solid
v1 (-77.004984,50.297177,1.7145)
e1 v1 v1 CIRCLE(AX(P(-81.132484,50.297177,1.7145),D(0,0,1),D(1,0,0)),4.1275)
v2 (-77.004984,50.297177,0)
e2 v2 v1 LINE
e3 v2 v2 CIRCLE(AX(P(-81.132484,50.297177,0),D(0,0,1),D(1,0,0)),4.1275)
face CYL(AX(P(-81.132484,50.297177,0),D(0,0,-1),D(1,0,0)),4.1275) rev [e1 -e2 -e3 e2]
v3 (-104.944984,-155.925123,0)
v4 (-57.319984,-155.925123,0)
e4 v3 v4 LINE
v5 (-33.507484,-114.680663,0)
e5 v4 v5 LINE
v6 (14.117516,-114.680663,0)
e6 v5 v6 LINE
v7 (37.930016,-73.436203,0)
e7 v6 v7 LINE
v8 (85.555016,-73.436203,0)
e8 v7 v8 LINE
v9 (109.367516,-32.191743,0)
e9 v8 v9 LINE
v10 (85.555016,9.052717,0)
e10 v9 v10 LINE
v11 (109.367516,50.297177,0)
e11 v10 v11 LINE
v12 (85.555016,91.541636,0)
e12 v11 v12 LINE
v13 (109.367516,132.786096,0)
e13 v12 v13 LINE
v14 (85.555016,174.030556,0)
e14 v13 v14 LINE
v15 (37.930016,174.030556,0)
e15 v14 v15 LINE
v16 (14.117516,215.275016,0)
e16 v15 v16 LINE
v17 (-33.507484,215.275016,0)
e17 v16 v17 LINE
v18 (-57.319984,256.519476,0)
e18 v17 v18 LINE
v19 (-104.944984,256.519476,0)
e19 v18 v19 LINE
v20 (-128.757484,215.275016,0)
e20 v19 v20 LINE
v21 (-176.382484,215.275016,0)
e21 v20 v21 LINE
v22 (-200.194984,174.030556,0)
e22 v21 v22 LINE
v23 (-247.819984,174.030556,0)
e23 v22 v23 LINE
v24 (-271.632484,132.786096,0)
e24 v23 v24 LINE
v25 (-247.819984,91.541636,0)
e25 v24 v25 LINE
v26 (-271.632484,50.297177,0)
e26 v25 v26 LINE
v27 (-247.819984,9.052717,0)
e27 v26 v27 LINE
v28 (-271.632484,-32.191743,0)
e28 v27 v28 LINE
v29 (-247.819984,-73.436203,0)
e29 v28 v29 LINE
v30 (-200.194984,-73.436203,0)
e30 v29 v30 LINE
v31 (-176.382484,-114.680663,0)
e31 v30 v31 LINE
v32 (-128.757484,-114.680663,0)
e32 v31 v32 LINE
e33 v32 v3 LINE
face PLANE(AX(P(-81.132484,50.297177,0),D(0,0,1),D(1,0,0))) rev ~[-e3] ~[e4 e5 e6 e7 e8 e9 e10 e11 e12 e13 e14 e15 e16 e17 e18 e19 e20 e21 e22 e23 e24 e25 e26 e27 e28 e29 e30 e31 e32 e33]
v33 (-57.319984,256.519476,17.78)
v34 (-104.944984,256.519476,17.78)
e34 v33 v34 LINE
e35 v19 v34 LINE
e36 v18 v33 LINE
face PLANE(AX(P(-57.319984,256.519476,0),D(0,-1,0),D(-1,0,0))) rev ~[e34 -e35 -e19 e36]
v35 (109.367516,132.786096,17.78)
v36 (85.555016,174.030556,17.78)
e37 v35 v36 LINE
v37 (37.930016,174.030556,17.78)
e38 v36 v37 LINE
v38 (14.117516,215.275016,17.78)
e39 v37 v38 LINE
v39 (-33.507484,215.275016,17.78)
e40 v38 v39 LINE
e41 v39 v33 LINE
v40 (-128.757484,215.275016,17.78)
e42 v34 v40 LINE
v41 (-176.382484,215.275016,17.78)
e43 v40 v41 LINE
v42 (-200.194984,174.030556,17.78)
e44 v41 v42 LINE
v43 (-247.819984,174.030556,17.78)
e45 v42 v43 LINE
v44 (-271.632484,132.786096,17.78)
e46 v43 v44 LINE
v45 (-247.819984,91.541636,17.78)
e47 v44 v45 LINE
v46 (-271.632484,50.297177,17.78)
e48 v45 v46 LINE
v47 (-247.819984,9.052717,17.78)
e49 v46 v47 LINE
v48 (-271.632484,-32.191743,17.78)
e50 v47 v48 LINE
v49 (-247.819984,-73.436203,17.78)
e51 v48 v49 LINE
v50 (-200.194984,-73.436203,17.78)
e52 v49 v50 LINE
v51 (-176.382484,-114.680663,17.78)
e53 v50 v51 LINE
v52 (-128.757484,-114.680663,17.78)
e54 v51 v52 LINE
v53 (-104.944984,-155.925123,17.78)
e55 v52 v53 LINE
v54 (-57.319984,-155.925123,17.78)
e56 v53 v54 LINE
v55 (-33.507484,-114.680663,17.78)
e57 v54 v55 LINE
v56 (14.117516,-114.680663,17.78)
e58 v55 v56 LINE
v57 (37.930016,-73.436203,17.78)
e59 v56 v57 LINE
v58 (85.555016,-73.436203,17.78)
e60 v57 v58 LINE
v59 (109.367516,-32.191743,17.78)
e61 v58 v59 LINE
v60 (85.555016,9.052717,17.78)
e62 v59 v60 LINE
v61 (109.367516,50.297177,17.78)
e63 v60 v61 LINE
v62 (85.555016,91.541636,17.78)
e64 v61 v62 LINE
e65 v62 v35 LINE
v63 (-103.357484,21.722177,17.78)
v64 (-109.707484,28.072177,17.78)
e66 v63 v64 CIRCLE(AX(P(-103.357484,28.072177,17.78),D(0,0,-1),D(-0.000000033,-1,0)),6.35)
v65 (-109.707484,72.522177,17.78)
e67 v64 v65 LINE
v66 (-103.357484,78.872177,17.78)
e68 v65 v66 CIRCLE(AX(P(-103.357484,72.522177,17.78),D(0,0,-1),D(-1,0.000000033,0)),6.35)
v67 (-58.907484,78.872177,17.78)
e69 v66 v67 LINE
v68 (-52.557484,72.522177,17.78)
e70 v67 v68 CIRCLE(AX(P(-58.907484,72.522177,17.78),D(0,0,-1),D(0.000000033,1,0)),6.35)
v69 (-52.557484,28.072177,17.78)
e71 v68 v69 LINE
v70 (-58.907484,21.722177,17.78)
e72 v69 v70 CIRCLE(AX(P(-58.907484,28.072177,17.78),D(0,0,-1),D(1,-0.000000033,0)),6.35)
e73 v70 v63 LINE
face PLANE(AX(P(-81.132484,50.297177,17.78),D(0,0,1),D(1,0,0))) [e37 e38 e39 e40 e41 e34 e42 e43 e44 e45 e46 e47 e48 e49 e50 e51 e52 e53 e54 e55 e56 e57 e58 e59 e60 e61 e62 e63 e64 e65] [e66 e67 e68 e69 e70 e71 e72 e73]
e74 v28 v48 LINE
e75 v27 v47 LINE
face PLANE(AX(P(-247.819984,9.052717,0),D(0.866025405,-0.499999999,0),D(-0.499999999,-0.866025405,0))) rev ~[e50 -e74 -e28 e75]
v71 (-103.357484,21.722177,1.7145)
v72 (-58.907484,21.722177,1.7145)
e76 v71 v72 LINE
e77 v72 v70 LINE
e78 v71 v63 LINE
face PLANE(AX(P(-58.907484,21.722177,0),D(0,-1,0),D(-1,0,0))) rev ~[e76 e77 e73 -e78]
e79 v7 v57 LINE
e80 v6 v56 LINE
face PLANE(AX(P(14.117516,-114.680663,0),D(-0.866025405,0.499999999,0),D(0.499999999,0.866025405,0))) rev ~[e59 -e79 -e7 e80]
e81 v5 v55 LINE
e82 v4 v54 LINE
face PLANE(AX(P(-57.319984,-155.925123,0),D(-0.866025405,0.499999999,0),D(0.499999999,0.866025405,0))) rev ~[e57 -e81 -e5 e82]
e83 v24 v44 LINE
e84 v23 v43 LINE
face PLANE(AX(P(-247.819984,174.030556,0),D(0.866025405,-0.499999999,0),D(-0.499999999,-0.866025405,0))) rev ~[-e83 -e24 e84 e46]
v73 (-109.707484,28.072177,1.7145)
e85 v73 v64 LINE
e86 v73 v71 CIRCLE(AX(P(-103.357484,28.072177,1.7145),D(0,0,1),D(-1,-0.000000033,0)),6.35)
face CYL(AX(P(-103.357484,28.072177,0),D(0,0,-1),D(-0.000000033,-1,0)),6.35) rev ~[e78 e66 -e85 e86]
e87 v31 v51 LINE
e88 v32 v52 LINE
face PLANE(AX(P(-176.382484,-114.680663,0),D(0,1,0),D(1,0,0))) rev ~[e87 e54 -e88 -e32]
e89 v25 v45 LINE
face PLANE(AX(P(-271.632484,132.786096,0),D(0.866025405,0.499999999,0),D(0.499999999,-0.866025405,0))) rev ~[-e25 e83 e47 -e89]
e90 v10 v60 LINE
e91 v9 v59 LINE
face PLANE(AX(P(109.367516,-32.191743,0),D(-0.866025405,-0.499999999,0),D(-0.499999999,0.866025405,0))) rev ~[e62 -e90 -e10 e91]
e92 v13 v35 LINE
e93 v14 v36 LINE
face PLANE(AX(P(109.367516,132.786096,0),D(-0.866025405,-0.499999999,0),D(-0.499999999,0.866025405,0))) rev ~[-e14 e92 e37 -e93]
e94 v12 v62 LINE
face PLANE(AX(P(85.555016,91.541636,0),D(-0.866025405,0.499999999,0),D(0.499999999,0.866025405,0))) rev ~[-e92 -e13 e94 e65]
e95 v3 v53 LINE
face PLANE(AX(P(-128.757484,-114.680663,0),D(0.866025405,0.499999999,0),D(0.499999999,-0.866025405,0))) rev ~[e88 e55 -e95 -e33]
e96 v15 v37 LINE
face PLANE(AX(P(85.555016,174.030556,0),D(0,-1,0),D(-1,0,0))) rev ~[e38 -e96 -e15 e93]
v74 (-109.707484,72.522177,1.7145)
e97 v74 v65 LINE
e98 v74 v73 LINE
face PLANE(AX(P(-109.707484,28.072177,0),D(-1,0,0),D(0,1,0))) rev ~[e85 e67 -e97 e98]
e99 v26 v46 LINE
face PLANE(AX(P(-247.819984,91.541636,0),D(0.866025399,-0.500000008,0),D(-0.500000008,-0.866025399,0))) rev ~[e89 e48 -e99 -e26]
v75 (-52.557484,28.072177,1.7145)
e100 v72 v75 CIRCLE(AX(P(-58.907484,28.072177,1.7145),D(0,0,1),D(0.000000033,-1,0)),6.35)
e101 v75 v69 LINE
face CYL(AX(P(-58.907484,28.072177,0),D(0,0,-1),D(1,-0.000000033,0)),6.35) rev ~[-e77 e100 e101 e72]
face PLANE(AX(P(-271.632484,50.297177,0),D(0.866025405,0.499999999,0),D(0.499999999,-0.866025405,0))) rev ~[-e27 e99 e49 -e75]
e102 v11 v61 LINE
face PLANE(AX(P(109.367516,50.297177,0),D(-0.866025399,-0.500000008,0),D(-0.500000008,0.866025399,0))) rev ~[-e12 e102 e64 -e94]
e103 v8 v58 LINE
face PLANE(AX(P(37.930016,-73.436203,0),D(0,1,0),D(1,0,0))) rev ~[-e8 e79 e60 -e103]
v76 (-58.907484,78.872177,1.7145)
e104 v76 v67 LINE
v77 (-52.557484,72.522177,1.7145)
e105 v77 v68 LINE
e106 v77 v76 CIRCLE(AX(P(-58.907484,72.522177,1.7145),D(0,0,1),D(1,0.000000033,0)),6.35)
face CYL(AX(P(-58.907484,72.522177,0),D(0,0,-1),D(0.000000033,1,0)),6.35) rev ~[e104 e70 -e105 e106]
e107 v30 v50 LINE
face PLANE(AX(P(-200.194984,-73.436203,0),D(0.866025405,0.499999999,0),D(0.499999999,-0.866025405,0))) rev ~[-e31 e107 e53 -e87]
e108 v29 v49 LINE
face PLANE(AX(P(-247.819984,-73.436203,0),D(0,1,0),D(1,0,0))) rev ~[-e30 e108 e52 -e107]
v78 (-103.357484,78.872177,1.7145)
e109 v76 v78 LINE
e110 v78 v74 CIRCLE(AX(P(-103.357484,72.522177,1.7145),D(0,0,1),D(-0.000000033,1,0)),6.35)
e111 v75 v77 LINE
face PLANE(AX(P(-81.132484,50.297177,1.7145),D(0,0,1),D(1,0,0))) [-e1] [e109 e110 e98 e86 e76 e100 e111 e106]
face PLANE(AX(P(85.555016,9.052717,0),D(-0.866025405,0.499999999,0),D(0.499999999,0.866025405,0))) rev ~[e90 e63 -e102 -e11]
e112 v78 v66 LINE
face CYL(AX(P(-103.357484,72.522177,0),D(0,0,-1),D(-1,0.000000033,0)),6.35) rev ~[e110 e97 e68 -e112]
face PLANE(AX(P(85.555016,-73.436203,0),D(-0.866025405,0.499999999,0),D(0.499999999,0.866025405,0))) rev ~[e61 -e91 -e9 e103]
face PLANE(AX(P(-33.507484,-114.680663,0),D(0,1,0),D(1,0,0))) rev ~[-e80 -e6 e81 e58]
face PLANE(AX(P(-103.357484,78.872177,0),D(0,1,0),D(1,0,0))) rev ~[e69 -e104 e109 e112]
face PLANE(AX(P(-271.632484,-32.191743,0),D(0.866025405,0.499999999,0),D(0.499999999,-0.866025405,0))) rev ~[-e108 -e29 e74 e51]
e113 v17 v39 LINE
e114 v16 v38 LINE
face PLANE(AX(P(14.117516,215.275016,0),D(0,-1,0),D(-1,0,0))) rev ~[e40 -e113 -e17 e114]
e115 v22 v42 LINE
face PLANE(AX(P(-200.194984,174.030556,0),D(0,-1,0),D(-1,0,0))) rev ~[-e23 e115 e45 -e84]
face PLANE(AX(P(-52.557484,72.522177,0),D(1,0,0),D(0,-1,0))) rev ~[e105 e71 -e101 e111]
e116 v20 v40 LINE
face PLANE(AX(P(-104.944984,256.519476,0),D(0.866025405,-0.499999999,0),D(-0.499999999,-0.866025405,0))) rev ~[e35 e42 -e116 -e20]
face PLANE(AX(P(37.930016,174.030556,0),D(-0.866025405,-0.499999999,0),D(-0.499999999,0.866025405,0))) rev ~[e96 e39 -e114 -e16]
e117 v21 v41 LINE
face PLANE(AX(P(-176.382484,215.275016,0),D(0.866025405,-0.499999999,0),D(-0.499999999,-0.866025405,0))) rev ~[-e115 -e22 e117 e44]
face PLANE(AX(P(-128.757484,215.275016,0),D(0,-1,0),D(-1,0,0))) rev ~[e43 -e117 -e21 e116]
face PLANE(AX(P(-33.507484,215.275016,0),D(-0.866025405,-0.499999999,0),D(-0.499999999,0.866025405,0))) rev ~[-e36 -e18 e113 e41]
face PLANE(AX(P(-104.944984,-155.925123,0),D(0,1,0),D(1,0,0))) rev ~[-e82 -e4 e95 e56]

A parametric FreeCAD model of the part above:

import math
import FreeCAD as App
import Part
import Sketcher

V = App.Vector
Q = App.Units.Quantity

doc = App.newDocument("Part")
body = doc.addObject("PartDesign::Body", "Body")

# Sketch on XY plane
sketch1 = body.newObject("Sketcher::SketchObject", "Sketch")
sketch1.AttachmentSupport = (doc.getObject("XY_Plane"), [""])
sketch1.MapMode = "FlatFace"
sketch1.addGeometry([
    Part.LineSegment(V(-272, 50, 0), V(-248, 9, 0)),  # 0
    Part.LineSegment(V(-248, 9, 0), V(-272, -32, 0)),  # 1
    Part.LineSegment(V(-272, -32, 0), V(-248, -73, 0)),  # 2
    Part.LineSegment(V(-248, -73, 0), V(-200, -73, 0)),  # 3
    Part.LineSegment(V(-200, -73, 0), V(-176, -115, 0)),  # 4
    Part.LineSegment(V(-176, -115, 0), V(-129, -115, 0)),  # 5
    Part.LineSegment(V(-129, -115, 0), V(-105, -156, 0)),  # 6
    Part.LineSegment(V(-105, -156, 0), V(-57, -156, 0)),  # 7
    Part.LineSegment(V(-57, -156, 0), V(-34, -115, 0)),  # 8
    Part.LineSegment(V(-34, -115, 0), V(14, -115, 0)),  # 9
    Part.LineSegment(V(14, -115, 0), V(38, -73, 0)),  # 10
    Part.LineSegment(V(38, -73, 0), V(86, -73, 0)),  # 11
    Part.LineSegment(V(86, -73, 0), V(109, -32, 0)),  # 12
    Part.LineSegment(V(109, -32, 0), V(86, 9, 0)),  # 13
    Part.LineSegment(V(86, 9, 0), V(109, 50, 0)),  # 14
    Part.LineSegment(V(109, 50, 0), V(86, 92, 0)),  # 15
    Part.LineSegment(V(86, 92, 0), V(109, 133, 0)),  # 16
    Part.LineSegment(V(109, 133, 0), V(86, 174, 0)),  # 17
    Part.LineSegment(V(86, 174, 0), V(38, 174, 0)),  # 18
    Part.LineSegment(V(38, 174, 0), V(14, 215, 0)),  # 19
    Part.LineSegment(V(14, 215, 0), V(-34, 215, 0)),  # 20
    Part.LineSegment(V(-34, 215, 0), V(-57, 257, 0)),  # 21
    Part.LineSegment(V(-57, 257, 0), V(-105, 257, 0)),  # 22
    Part.LineSegment(V(-105, 257, 0), V(-129, 215, 0)),  # 23
    Part.LineSegment(V(-129, 215, 0), V(-176, 215, 0)),  # 24
    Part.LineSegment(V(-176, 215, 0), V(-200, 174, 0)),  # 25
    Part.LineSegment(V(-200, 174, 0), V(-248, 174, 0)),  # 26
    Part.LineSegment(V(-248, 174, 0), V(-272, 133, 0)),  # 27
    Part.LineSegment(V(-272, 133, 0), V(-248, 92, 0)),  # 28
    Part.LineSegment(V(-248, 92, 0), V(-272, 50, 0)),  # 29
    Part.LineSegment(V(-110, 28, 0), V(-110, 73, 0)),  # 30
    Part.ArcOfCircle(Part.Circle(V(-103, 73, 0), V(0, 0, 1), 6), math.radians(90), math.radians(180)),  # 31
    Part.LineSegment(V(-103, 79, 0), V(-59, 79, 0)),  # 32
    Part.ArcOfCircle(Part.Circle(V(-59, 73, 0), V(0, 0, 1), 6), math.radians(0), math.radians(90)),  # 33
    Part.LineSegment(V(-53, 73, 0), V(-53, 28, 0)),  # 34
    Part.ArcOfCircle(Part.Circle(V(-59, 28, 0), V(0, 0, 1), 6), math.radians(-90), math.radians(0)),  # 35
    Part.LineSegment(V(-59, 22, 0), V(-103, 22, 0)),  # 36
    Part.ArcOfCircle(Part.Circle(V(-103, 28, 0), V(0, 0, 1), 6), math.radians(-180), math.radians(-90)),  # 37
], False)
sketch1.addConstraint([
    Sketcher.Constraint("Coincident", 0, 2, 1, 1),
    Sketcher.Constraint("Coincident", 1, 2, 2, 1),
    Sketcher.Constraint("Coincident", 2, 2, 3, 1),
    Sketcher.Constraint("Coincident", 3, 2, 4, 1),
    Sketcher.Constraint("Coincident", 4, 2, 5, 1),
    Sketcher.Constraint("Coincident", 5, 2, 6, 1),
    Sketcher.Constraint("Coincident", 6, 2, 7, 1),
    Sketcher.Constraint("Coincident", 7, 2, 8, 1),
    Sketcher.Constraint("Coincident", 8, 2, 9, 1),
    Sketcher.Constraint("Coincident", 9, 2, 10, 1),
    Sketcher.Constraint("Coincident", 10, 2, 11, 1),
    Sketcher.Constraint("Coincident", 11, 2, 12, 1),
    Sketcher.Constraint("Coincident", 12, 2, 13, 1),
    Sketcher.Constraint("Coincident", 13, 2, 14, 1),
    Sketcher.Constraint("Coincident", 14, 2, 15, 1),
    Sketcher.Constraint("Coincident", 15, 2, 16, 1),
    Sketcher.Constraint("Coincident", 16, 2, 17, 1),
    Sketcher.Constraint("Coincident", 17, 2, 18, 1),
    Sketcher.Constraint("Coincident", 18, 2, 19, 1),
    Sketcher.Constraint("Coincident", 19, 2, 20, 1),
    Sketcher.Constraint("Coincident", 20, 2, 21, 1),
    Sketcher.Constraint("Coincident", 21, 2, 22, 1),
    Sketcher.Constraint("Coincident", 22, 2, 23, 1),
    Sketcher.Constraint("Coincident", 23, 2, 24, 1),
    Sketcher.Constraint("Coincident", 24, 2, 25, 1),
    Sketcher.Constraint("Coincident", 25, 2, 26, 1),
    Sketcher.Constraint("Coincident", 26, 2, 27, 1),
    Sketcher.Constraint("Coincident", 27, 2, 28, 1),
    Sketcher.Constraint("Coincident", 28, 2, 29, 1),
    Sketcher.Constraint("Coincident", 29, 2, 0, 1),
    Sketcher.Constraint("Tangent", 30, 2, 31, 2),
    Sketcher.Constraint("Tangent", 31, 1, 32, 1),
    Sketcher.Constraint("Tangent", 32, 2, 33, 2),
    Sketcher.Constraint("Tangent", 33, 1, 34, 1),
    Sketcher.Constraint("Tangent", 34, 2, 35, 2),
    Sketcher.Constraint("Tangent", 35, 1, 36, 1),
    Sketcher.Constraint("Tangent", 36, 2, 37, 2),
    Sketcher.Constraint("Tangent", 37, 1, 30, 1),
    Sketcher.Constraint("Horizontal", 3),
    Sketcher.Constraint("Horizontal", 5),
    Sketcher.Constraint("Horizontal", 7),
    Sketcher.Constraint("Horizontal", 9),
    Sketcher.Constraint("Horizontal", 11),
    Sketcher.Constraint("Horizontal", 18),
    Sketcher.Constraint("Horizontal", 20),
    Sketcher.Constraint("Horizontal", 22),
    Sketcher.Constraint("Horizontal", 24),
    Sketcher.Constraint("Horizontal", 26),
    Sketcher.Constraint("Vertical", 30),
    Sketcher.Constraint("Horizontal", 32),
    Sketcher.Constraint("Vertical", 34),
    Sketcher.Constraint("Horizontal", 36),
    Sketcher.Constraint("Equal", 31, 33),
    Sketcher.Constraint("Equal", 33, 35),
    Sketcher.Constraint("Equal", 35, 37),
    Sketcher.Constraint("Parallel", 0, 2),
    Sketcher.Constraint("Parallel", 2, 4),
    Sketcher.Constraint("Parallel", 4, 6),
    Sketcher.Constraint("Parallel", 1, 8),
    Sketcher.Constraint("Parallel", 8, 10),
    Sketcher.Constraint("Parallel", 10, 12),
    Sketcher.Constraint("Parallel", 6, 13),
    Sketcher.Constraint("Parallel", 12, 14),
    Sketcher.Constraint("Parallel", 13, 15),
    Sketcher.Constraint("Parallel", 14, 16),
    Sketcher.Constraint("Parallel", 15, 17),
    Sketcher.Constraint("Parallel", 17, 19),
    Sketcher.Constraint("Parallel", 19, 21),
    Sketcher.Constraint("Parallel", 16, 23),
    Sketcher.Constraint("Parallel", 23, 25),
    Sketcher.Constraint("Parallel", 25, 27),
    Sketcher.Constraint("Parallel", 21, 28),
    Sketcher.Constraint("Parallel", 27, 29),
    Sketcher.Constraint("Horizontal", 5, 2, 8, 2),
    Sketcher.Constraint("Horizontal", 3, 2, 10, 2),
    Sketcher.Constraint("Horizontal", 1, 2, 12, 2),
    Sketcher.Constraint("Horizontal", 0, 2, 13, 2),
    Sketcher.Constraint("Horizontal", 20, 2, 23, 2),
    Sketcher.Constraint("Horizontal", 18, 2, 25, 2),
    Sketcher.Constraint("Horizontal", 16, 2, 27, 2),
    Sketcher.Constraint("Horizontal", 15, 2, 28, 2),
    Sketcher.Constraint("Horizontal", 14, 2, 29, 2),
    Sketcher.Constraint("Vertical", 0, 2, 2, 2),
    Sketcher.Constraint("Vertical", 11, 2, 13, 2),
    Sketcher.Constraint("Vertical", 12, 2, 14, 2),
    Sketcher.Constraint("Vertical", 13, 2, 15, 2),
    Sketcher.Constraint("Vertical", 14, 2, 16, 2),
    Sketcher.Constraint("Vertical", 15, 2, 17, 2),
    Sketcher.Constraint("Vertical", 10, 2, 18, 2),
    Sketcher.Constraint("Vertical", 9, 2, 19, 2),
    Sketcher.Constraint("Vertical", 8, 2, 20, 2),
    Sketcher.Constraint("Vertical", 7, 2, 21, 2),
    Sketcher.Constraint("Vertical", 6, 2, 22, 2),
    Sketcher.Constraint("Vertical", 4, 2, 24, 2),
    Sketcher.Constraint("Equal", 3, 5),
    Sketcher.Constraint("Equal", 5, 7),
    Sketcher.Constraint("Equal", 7, 9),
    Sketcher.Constraint("Equal", 9, 11),
    Sketcher.Constraint("Equal", 36, 30),
    Sketcher.Constraint("Equal", 2, 4),
    Sketcher.Constraint("Equal", 4, 6),
    Sketcher.Constraint("Radius", 31, Q("0.25 in")),
    Sketcher.Constraint("Angle", 0, Q("-60 deg")),
    Sketcher.Constraint("DistanceX", 5, 2, 37, 3, Q("1 in")),
    Sketcher.Constraint("DistanceX", 35, 3, 8, 2, Q("1 in")),
    Sketcher.Constraint("DistanceX", 30, 2, 33, 3, Q("2 in")),
    Sketcher.Constraint("DistanceX", 3, 1, 3, 2, Q("1.875 in")),
    Sketcher.Constraint("DistanceY", 14, 2, 33, 3, Q("0.875 in")),
    Sketcher.Constraint("DistanceX", 31, 3, -1, 1, 103.357484),
    Sketcher.Constraint("DistanceY", -1, 1, 31, 3, 72.522177),
])
pad1 = body.newObject("PartDesign::Pad", "Pad")
pad1.Profile = sketch1
pad1.Length = Q("0.7 in")

# Sketch on XY plane
sketch2 = body.newObject("Sketcher::SketchObject", "Sketch001")
sketch2.AttachmentSupport = (doc.getObject("XY_Plane"), [""])
sketch2.MapMode = "FlatFace"
sketch2.addGeometry([
    Part.LineSegment(V(-58.9, 78.9, 0), V(-103.4, 78.9, 0)),  # 0
    Part.ArcOfCircle(Part.Circle(V(-103.4, 72.5, 0), V(0, 0, 1), 6.4), math.radians(90), math.radians(180)),  # 1
    Part.LineSegment(V(-109.7, 72.5, 0), V(-109.7, 28.1, 0)),  # 2
    Part.ArcOfCircle(Part.Circle(V(-103.4, 28.1, 0), V(0, 0, 1), 6.4), math.radians(-180), math.radians(-90)),  # 3
    Part.LineSegment(V(-103.4, 21.7, 0), V(-58.9, 21.7, 0)),  # 4
    Part.ArcOfCircle(Part.Circle(V(-58.9, 28.1, 0), V(0, 0, 1), 6.4), math.radians(-90), math.radians(0)),  # 5
    Part.LineSegment(V(-52.6, 28.1, 0), V(-52.6, 72.5, 0)),  # 6
    Part.ArcOfCircle(Part.Circle(V(-58.9, 72.5, 0), V(0, 0, 1), 6.4), math.radians(0), math.radians(90)),  # 7
    Part.Circle(V(-81.1, 50.3, 0), V(0, 0, 1), 4.1),  # 8
], False)
sketch2.addConstraint([
    Sketcher.Constraint("Tangent", 0, 2, 1, 1),
    Sketcher.Constraint("Tangent", 1, 2, 2, 1),
    Sketcher.Constraint("Tangent", 2, 2, 3, 1),
    Sketcher.Constraint("Tangent", 3, 2, 4, 1),
    Sketcher.Constraint("Tangent", 4, 2, 5, 1),
    Sketcher.Constraint("Tangent", 5, 2, 6, 1),
    Sketcher.Constraint("Tangent", 6, 2, 7, 1),
    Sketcher.Constraint("Tangent", 7, 2, 0, 1),
    Sketcher.Constraint("Horizontal", 0),
    Sketcher.Constraint("Vertical", 2),
    Sketcher.Constraint("Horizontal", 4),
    Sketcher.Constraint("Vertical", 6),
    Sketcher.Constraint("Equal", 1, 3),
    Sketcher.Constraint("Equal", 3, 5),
    Sketcher.Constraint("Equal", 5, 7),
    Sketcher.Constraint("Equal", 4, 2),
    Sketcher.Constraint("Radius", 1, Q("0.25 in")),
    Sketcher.Constraint("Diameter", 8, Q("0.325 in")),
    Sketcher.Constraint("DistanceY", 3, 3, 0, 2, Q("2 in")),
    Sketcher.Constraint("DistanceX", 1, 3, 8, 3, Q("0.875 in")),
    Sketcher.Constraint("DistanceY", 8, 3, 1, 3, Q("0.875 in")),
    Sketcher.Constraint("DistanceX", 1, 3, -1, 1, 103.357484),
    Sketcher.Constraint("DistanceY", -1, 1, 1, 3, 72.522177),
])
pad2 = body.newObject("PartDesign::Pad", "Pad001")
pad2.Profile = sketch2
pad2.Length = Q("0.0675 in")

doc.recompute()
